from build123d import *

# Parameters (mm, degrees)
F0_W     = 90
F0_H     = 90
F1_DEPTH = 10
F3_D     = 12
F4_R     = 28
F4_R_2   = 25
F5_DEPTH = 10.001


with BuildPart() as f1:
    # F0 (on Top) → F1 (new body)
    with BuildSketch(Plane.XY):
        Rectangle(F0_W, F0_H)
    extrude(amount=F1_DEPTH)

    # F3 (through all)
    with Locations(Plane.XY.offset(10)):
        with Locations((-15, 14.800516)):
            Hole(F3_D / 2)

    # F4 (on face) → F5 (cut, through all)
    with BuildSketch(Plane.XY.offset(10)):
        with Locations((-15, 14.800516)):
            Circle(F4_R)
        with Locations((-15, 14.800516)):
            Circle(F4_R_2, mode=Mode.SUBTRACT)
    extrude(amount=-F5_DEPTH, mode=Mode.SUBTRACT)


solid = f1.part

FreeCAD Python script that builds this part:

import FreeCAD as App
import Part
import Sketcher
from FreeCAD import Vector
Q = App.Units.Quantity


def add_polygon(sketch, points):
    """Adds a closed chain of lines whose ends are joined by coincident constraints."""
    first, n = sketch.GeometryCount, len(points)
    for a, b in zip(points, points[1:] + points[:1]):
        sketch.addGeometry(Part.LineSegment(App.Vector(*a, 0), App.Vector(*b, 0)), False)
    for i in range(n):
        sketch.addConstraint(Sketcher.Constraint("Coincident", first + i, 2, first + (i + 1) % n, 1))

doc = App.newDocument("Part")
body = doc.addObject("PartDesign::Body", "Body")
body.AllowCompound = True

# Sketch on XY plane
sketch1 = body.newObject("Sketcher::SketchObject", "Sketch")
sketch1.AttachmentSupport = (doc.getObject("XY_Plane"), [""])
sketch1.MapMode = "FlatFace"
add_polygon(sketch1, [(-45, 45), (-45, -45), (45, -45), (45, 45)])  # lines 0-3
sketch1.addConstraint([
    Sketcher.Constraint("Vertical", 0),
    Sketcher.Constraint("Horizontal", 1),
    Sketcher.Constraint("Vertical", 2),
    Sketcher.Constraint("Horizontal", 3),
    Sketcher.Constraint("Symmetric", 0, 2, 2, 2, -1, 1),
    Sketcher.Constraint("Equal", 3, 0),
    Sketcher.Constraint("DistanceX", 1, 1, 1, 2, Q("90 mm")),
])
pad1 = body.newObject("PartDesign::Pad", "Pad")
pad1.Profile = sketch1
pad1.Length = 10

# Sketch on XY plane
sketch2 = body.newObject("Sketcher::SketchObject", "Sketch001")
sketch2.AttachmentSupport = (doc.getObject("XY_Plane"), [""])
sketch2.MapMode = "FlatFace"
sketch2.AttachmentOffset = App.Placement(Vector(0, 0, 10), App.Rotation())
sketch2.addGeometry(Part.Circle(Vector(-15, 14.800516, 0), Vector(0, 0, 1), 6), False)
sketch2.addConstraint([
    Sketcher.Constraint("Diameter", 0, Q("12 mm")),
    Sketcher.Constraint("DistanceX", 0, 3, -1, 1, Q("15 mm")),
    Sketcher.Constraint("DistanceY", -1, 1, 0, 3, Q("14.800516 mm")),
])
doc.recompute()
hole = body.newObject("PartDesign::Hole", "Hole")
hole.Profile = sketch2
hole.ThreadType = "None"
hole.Diameter = 12
hole.DepthType = "ThroughAll"

# Sketch on XY plane
sketch3 = body.newObject("Sketcher::SketchObject", "Sketch002")
sketch3.AttachmentSupport = (doc.getObject("XY_Plane"), [""])
sketch3.MapMode = "FlatFace"
sketch3.AttachmentOffset = App.Placement(Vector(0, 0, 10), App.Rotation())
sketch3.addGeometry([
    Part.Circle(Vector(-15, 14.800516, 0), Vector(0, 0, 1), 28),
    Part.Circle(Vector(-15, 14.800516, 0), Vector(0, 0, 1), 25),
], False)
sketch3.addConstraint([
    Sketcher.Constraint("Coincident", 1, 3, 0, 3),
    Sketcher.Constraint("Diameter", 0, Q("56 mm")),
    Sketcher.Constraint("Diameter", 1, Q("50 mm")),
    Sketcher.Constraint("DistanceX", 0, 3, -1, 1, Q("15 mm")),
    Sketcher.Constraint("DistanceY", -1, 1, 0, 3, Q("14.800516 mm")),
])
pocket1 = body.newObject("PartDesign::Pocket", "Pocket")
pocket1.Profile = sketch3
pocket1.Type = "ThroughAll"

doc.recompute()
